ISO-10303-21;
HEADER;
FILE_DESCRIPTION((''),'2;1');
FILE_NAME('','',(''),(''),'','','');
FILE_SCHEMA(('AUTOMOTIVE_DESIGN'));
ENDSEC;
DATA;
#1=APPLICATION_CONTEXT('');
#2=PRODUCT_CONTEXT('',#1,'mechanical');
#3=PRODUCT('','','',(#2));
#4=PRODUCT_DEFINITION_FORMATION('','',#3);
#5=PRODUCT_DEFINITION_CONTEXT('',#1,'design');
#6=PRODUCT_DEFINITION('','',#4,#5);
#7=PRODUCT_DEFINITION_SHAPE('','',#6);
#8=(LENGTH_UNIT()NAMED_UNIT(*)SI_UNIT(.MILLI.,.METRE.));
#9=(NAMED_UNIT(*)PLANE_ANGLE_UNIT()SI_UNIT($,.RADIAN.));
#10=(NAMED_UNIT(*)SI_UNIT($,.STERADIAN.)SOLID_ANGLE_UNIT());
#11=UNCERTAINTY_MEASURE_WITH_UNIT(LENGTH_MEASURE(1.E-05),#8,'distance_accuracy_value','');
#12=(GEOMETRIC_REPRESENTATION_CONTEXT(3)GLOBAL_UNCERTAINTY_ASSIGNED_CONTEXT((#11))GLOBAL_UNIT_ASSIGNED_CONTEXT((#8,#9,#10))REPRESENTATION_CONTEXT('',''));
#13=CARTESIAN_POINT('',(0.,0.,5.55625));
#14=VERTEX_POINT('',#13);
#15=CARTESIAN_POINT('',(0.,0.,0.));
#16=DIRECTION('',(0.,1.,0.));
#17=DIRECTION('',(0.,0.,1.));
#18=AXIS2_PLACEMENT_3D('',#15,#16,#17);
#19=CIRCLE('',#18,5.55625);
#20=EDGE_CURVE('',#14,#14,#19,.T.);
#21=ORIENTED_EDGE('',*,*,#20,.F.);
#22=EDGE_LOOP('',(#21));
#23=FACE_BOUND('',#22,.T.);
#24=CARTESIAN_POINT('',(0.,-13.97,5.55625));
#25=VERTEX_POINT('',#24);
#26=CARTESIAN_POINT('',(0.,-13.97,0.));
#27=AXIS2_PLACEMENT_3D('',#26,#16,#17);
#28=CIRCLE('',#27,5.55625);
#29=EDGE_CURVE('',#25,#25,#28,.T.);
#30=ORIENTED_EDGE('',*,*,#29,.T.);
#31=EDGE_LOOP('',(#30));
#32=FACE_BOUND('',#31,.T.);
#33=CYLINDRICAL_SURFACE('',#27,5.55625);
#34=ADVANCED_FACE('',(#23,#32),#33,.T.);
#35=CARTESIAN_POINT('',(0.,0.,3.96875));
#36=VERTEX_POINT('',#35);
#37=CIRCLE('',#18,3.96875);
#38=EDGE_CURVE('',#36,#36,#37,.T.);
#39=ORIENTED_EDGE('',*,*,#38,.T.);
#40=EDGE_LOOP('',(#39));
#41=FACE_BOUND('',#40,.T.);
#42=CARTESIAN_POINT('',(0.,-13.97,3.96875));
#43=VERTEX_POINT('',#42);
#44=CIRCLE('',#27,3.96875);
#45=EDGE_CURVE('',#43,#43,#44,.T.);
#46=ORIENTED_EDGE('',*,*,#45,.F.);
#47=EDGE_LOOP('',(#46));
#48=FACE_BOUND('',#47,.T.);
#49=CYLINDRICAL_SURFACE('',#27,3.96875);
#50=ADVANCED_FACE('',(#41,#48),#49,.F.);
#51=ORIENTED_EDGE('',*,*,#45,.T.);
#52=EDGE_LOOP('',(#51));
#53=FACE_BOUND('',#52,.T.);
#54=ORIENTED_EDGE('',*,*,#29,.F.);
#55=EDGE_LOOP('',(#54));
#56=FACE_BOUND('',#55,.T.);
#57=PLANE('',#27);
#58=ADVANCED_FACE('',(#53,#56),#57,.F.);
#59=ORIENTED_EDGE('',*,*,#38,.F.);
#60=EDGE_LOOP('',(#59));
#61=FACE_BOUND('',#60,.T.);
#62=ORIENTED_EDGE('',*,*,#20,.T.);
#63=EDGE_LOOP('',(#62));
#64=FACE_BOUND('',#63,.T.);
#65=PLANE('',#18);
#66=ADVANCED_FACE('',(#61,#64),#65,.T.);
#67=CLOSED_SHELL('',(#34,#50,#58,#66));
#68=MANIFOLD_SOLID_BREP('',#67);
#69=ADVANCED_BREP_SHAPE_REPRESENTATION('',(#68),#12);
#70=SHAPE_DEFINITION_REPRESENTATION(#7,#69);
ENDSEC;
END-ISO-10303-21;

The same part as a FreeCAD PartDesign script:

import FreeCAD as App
import Part
import Sketcher
from FreeCAD import Vector
Q = App.Units.Quantity

doc = App.newDocument("Part")
params = doc.addObject("Spreadsheet::Sheet", "Params")
for row, (alias, value) in enumerate([
    ("sketch1_diameter", "0.4375 in"),
    ("sketch1_diameter2", "0.3125 in"),
    ("pad1_length", "0.55 in"),
], start=1):
    params.set(f"A{row}", alias)
    params.set(f"B{row}", "=" + value)
    params.setAlias(f"B{row}", alias)

body = doc.addObject("PartDesign::Body", "Body")

sketch1 = body.newObject("Sketcher::SketchObject", "Sketch")
sketch1.AttachmentSupport = (doc.getObject("XZ_Plane"), [""])
sketch1.MapMode = "FlatFace"
sketch1.addGeometry([
    Part.Circle(Vector(0, 0, 0), Vector(0, 0, 1), 5.6),
    Part.Circle(Vector(0, 0, 0), Vector(0, 0, 1), 4),
], False)
sketch1.addConstraint([
    Sketcher.Constraint("Coincident", 0, 3, -1, 1),
    Sketcher.Constraint("Coincident", 1, 3, -1, 1),
    Sketcher.Constraint("Diameter", 0, Q("0.4375 in")),
    Sketcher.Constraint("Diameter", 1, Q("0.3125 in")),
])
sketch1.setExpression("Constraints[2]", "Params.sketch1_diameter")
sketch1.setExpression("Constraints[3]", "Params.sketch1_diameter2")
pad1 = body.newObject("PartDesign::Pad", "Pad")
pad1.Profile = sketch1
pad1.setExpression("Length", "Params.pad1_length")

doc.recompute()
